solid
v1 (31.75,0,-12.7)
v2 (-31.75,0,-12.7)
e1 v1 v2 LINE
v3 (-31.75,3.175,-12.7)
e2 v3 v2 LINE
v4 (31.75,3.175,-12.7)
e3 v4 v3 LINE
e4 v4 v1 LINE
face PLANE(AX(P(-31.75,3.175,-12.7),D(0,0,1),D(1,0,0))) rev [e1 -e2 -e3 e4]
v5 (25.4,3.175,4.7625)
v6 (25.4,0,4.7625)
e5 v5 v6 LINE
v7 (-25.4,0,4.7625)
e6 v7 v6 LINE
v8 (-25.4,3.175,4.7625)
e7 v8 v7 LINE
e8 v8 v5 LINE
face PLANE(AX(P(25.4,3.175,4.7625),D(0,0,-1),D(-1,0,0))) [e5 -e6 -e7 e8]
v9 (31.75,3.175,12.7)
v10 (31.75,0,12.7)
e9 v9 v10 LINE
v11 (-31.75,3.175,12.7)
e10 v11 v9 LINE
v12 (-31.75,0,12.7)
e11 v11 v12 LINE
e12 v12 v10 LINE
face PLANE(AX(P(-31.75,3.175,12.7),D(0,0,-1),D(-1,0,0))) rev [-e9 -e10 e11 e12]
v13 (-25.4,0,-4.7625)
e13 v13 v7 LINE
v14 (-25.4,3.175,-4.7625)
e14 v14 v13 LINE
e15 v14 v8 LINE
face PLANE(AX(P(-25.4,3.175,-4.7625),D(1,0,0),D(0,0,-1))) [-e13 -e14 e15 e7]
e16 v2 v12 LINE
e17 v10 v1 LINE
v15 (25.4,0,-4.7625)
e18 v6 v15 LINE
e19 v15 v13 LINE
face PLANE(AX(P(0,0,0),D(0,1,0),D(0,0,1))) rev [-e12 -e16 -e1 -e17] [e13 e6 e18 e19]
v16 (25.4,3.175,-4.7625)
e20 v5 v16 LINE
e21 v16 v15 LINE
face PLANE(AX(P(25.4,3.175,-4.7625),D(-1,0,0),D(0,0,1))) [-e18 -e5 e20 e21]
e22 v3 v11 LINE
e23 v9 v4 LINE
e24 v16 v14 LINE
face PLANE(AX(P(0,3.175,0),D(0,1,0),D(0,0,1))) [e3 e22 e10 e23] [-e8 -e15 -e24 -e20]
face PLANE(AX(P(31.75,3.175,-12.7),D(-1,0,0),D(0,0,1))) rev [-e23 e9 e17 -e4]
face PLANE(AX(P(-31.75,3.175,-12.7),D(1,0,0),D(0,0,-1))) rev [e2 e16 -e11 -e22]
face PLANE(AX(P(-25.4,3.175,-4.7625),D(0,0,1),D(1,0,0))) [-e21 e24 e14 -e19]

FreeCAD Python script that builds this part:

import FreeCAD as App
import Part
import Sketcher
from FreeCAD import Vector
Q = App.Units.Quantity

doc = App.newDocument("Part")
body = doc.addObject("PartDesign::Body", "Body")

# Sketch on XZ plane
sketch1 = body.newObject("Sketcher::SketchObject", "Sketch")
sketch1.AttachmentSupport = (doc.getObject("XZ_Plane"), [""])
sketch1.MapMode = "FlatFace"
sketch1.addGeometry([
    Part.LineSegment(Vector(-32, -13, 0), Vector(-32, 13, 0)),  # 0
    Part.LineSegment(Vector(-32, 13, 0), Vector(32, 13, 0)),  # 1
    Part.LineSegment(Vector(32, 13, 0), Vector(32, -13, 0)),  # 2
    Part.LineSegment(Vector(32, -13, 0), Vector(-32, -13, 0)),  # 3
    Part.LineSegment(Vector(25, 5, 0), Vector(-25, 5, 0)),  # 4
    Part.LineSegment(Vector(-25, 5, 0), Vector(-25, -5, 0)),  # 5
    Part.LineSegment(Vector(-25, -5, 0), Vector(25, -5, 0)),  # 6
    Part.LineSegment(Vector(25, -5, 0), Vector(25, 5, 0)),  # 7
], False)
sketch1.addConstraint([
    Sketcher.Constraint("Coincident", 0, 2, 1, 1),
    Sketcher.Constraint("Coincident", 1, 2, 2, 1),
    Sketcher.Constraint("Coincident", 2, 2, 3, 1),
    Sketcher.Constraint("Coincident", 3, 2, 0, 1),
    Sketcher.Constraint("Coincident", 4, 2, 5, 1),
    Sketcher.Constraint("Coincident", 5, 2, 6, 1),
    Sketcher.Constraint("Coincident", 6, 2, 7, 1),
    Sketcher.Constraint("Coincident", 7, 2, 4, 1),
    Sketcher.Constraint("Vertical", 0),
    Sketcher.Constraint("Horizontal", 1),
    Sketcher.Constraint("Vertical", 2),
    Sketcher.Constraint("Horizontal", 3),
    Sketcher.Constraint("Horizontal", 4),
    Sketcher.Constraint("Vertical", 5),
    Sketcher.Constraint("Horizontal", 6),
    Sketcher.Constraint("Vertical", 7),
    Sketcher.Constraint("Symmetric", 0, 2, 2, 2, -1, 1),
    Sketcher.Constraint("Symmetric", 4, 2, 6, 2, -1, 1),
    Sketcher.Constraint("DistanceX", 4, 2, 4, 1, Q("2 in")),
    Sketcher.Constraint("DistanceY", 0, 1, 0, 2, Q("1 in")),
    Sketcher.Constraint("DistanceX", 1, 1, 1, 2, Q("2.5 in")),
    Sketcher.Constraint("DistanceY", 5, 2, 5, 1, Q("0.375 in")),
])
pad1 = body.newObject("PartDesign::Pad", "Pad")
pad1.Profile = sketch1
pad1.Length = Q("0.125 in")
pad1.Reversed = True

doc.recompute()
